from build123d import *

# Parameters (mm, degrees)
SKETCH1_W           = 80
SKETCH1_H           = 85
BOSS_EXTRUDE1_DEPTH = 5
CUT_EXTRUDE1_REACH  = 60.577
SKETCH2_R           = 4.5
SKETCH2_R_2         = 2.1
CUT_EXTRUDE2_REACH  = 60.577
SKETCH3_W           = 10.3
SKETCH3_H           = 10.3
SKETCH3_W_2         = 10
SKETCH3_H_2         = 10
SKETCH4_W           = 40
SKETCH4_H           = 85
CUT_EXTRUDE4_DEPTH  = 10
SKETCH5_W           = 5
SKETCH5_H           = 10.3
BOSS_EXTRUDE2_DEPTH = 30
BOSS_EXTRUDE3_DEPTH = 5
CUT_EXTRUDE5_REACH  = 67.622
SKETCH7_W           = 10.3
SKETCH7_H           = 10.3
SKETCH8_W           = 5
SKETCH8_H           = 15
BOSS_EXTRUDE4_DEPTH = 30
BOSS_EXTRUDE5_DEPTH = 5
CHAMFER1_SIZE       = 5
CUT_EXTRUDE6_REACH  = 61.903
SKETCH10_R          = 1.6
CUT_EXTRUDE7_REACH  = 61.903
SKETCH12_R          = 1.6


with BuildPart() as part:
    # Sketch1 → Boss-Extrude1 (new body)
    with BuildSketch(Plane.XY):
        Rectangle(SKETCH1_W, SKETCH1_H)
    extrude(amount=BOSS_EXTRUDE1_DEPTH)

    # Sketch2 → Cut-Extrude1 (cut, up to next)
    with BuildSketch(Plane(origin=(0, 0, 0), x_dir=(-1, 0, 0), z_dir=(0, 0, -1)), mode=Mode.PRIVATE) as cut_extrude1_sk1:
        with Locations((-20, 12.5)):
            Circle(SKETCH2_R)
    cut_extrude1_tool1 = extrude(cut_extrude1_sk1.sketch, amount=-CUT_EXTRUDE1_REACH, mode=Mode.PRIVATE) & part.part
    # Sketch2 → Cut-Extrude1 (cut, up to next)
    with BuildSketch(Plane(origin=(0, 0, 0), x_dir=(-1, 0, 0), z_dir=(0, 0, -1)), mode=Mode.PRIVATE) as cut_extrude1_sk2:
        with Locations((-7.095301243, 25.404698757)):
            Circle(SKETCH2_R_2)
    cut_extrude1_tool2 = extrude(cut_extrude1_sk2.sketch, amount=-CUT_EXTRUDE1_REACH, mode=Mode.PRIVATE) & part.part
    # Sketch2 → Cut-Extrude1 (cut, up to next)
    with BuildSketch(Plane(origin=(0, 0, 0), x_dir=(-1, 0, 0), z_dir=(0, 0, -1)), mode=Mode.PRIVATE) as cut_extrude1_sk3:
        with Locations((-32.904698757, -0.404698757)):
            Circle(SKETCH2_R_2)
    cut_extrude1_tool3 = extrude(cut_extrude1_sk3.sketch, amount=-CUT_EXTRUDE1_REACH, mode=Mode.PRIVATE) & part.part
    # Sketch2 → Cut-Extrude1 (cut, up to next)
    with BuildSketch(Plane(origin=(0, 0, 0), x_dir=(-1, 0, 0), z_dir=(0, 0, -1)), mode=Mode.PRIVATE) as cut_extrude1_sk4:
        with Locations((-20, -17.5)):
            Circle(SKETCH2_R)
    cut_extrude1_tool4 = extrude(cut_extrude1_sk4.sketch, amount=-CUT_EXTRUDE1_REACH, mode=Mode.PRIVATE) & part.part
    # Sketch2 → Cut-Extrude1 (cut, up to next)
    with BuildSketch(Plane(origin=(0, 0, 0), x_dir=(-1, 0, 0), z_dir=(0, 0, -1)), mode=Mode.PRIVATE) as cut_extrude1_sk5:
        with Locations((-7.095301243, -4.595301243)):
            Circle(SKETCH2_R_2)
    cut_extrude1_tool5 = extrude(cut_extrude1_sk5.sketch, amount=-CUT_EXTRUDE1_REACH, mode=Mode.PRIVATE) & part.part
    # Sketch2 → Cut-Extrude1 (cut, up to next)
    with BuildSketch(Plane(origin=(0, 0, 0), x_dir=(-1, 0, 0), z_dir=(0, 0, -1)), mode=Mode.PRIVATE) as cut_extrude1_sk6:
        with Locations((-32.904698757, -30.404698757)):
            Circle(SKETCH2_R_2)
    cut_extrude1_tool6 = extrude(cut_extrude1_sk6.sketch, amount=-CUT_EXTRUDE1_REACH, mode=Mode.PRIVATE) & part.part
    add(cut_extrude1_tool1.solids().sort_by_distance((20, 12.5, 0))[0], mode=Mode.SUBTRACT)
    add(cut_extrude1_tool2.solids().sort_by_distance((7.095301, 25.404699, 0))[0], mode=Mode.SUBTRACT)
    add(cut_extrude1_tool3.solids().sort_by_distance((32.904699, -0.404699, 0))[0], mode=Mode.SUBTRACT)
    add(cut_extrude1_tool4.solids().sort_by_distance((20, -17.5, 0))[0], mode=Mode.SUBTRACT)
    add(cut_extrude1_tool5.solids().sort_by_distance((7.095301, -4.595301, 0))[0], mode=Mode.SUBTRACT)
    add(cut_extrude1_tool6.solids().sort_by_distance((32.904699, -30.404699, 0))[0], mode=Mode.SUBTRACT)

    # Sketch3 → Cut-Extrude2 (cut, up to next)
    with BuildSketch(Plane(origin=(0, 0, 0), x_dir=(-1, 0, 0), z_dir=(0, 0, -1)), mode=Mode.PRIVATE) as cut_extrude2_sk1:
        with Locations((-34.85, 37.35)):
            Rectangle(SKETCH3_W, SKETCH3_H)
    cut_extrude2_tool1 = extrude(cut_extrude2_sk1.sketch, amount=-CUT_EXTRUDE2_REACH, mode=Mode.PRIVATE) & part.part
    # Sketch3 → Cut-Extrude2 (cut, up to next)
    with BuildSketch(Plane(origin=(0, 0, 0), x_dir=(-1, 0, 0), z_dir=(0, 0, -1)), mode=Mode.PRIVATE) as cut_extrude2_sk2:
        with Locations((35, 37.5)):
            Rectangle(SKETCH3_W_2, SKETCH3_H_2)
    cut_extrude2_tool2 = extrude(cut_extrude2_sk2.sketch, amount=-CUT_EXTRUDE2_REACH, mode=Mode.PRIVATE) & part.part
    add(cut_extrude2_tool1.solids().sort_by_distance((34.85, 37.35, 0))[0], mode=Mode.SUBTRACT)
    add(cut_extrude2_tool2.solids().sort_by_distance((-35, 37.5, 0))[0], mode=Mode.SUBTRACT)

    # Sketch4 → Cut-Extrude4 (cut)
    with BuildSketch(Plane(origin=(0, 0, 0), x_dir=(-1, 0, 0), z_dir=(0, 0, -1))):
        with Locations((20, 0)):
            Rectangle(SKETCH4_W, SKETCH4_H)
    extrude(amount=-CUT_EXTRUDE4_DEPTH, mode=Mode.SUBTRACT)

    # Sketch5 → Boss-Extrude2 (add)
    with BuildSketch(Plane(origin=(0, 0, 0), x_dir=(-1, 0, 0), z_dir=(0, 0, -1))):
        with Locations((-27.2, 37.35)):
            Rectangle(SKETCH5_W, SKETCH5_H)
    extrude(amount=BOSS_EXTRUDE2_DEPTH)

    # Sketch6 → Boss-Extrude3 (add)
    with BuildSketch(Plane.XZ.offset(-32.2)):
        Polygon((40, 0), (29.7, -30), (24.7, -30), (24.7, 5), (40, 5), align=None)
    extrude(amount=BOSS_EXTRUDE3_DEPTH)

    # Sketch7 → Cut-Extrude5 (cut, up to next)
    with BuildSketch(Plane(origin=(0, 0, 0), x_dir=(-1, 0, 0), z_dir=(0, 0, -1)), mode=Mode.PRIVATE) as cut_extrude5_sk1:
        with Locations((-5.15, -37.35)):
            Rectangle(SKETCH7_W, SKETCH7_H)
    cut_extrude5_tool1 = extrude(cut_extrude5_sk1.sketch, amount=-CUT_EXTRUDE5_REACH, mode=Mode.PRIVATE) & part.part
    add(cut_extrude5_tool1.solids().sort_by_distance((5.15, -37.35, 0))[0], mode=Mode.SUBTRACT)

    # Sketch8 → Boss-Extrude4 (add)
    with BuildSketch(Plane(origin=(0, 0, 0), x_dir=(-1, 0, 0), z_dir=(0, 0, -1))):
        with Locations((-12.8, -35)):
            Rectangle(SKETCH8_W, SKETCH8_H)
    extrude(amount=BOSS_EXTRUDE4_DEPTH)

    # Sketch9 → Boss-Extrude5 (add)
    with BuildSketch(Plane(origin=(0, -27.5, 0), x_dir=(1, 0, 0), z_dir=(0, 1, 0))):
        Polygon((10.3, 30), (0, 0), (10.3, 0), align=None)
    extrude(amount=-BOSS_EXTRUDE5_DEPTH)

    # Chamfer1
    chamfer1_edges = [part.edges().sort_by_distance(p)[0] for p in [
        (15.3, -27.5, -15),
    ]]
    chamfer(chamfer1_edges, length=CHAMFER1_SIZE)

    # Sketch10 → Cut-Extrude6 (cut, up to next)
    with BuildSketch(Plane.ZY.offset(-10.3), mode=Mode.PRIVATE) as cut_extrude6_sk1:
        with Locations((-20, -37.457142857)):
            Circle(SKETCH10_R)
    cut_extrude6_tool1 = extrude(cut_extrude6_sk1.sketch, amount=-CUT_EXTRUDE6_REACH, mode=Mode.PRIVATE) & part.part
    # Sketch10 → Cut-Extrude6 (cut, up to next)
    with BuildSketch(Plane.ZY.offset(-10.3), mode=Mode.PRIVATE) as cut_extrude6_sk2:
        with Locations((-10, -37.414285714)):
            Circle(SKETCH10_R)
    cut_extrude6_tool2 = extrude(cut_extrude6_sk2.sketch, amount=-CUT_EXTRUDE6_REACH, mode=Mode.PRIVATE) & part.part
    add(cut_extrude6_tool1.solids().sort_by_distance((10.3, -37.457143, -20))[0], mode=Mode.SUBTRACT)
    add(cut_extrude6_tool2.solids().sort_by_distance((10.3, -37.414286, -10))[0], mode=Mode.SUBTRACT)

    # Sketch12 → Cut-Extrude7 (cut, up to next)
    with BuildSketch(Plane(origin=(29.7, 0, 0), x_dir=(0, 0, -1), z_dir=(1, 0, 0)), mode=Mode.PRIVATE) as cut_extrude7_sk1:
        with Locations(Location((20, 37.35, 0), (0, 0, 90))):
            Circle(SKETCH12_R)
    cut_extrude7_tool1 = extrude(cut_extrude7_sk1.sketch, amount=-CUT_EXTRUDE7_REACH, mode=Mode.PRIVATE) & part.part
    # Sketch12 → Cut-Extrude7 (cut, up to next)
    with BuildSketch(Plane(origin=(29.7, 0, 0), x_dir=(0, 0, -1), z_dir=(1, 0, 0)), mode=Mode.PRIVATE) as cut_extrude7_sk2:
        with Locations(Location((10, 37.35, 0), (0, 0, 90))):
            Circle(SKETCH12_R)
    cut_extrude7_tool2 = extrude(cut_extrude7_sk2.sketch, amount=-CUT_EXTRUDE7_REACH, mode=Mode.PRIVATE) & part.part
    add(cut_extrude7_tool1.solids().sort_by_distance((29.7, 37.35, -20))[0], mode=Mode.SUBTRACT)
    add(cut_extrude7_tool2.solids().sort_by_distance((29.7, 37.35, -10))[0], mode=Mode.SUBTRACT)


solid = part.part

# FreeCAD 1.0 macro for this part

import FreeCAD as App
import Part
import Sketcher
from FreeCAD import Vector
Q = App.Units.Quantity


def edges_at(feature, points):
    """Names of the edges that pass closest to the given points."""
    edges = feature.Shape.Edges
    near = lambda p: min(range(len(edges)), key=lambda i: edges[i].distToShape(Part.Vertex(*p))[0])
    return sorted({f"Edge{near(p) + 1}" for p in points})


def add_polygon(sketch, points):
    """Adds a closed chain of lines whose ends are joined by coincident constraints."""
    first, n = sketch.GeometryCount, len(points)
    for a, b in zip(points, points[1:] + points[:1]):
        sketch.addGeometry(Part.LineSegment(App.Vector(*a, 0), App.Vector(*b, 0)), False)
    for i in range(n):
        sketch.addConstraint(Sketcher.Constraint("Coincident", first + i, 2, first + (i + 1) % n, 1))

doc = App.newDocument("Part")
body = doc.addObject("PartDesign::Body", "Body")

# Sketch on XY plane
sketch1 = body.newObject("Sketcher::SketchObject", "Sketch")
sketch1.AttachmentSupport = (doc.getObject("XY_Plane"), [""])
sketch1.MapMode = "FlatFace"
add_polygon(sketch1, [(-40, 42.5), (-40, -42.5), (40, -42.5), (40, 42.5)])  # lines 0-3
sketch1.addConstraint([
    Sketcher.Constraint("Vertical", 0),
    Sketcher.Constraint("Horizontal", 1),
    Sketcher.Constraint("Vertical", 2),
    Sketcher.Constraint("Horizontal", 3),
    Sketcher.Constraint("Symmetric", 0, 2, 2, 2, -1, 1),
    Sketcher.Constraint("DistanceX", 1, 1, 1, 2, Q("80 mm")),
    Sketcher.Constraint("DistanceY", 0, 2, 0, 1, Q("85 mm")),
])
pad1 = body.newObject("PartDesign::Pad", "Pad")
pad1.Profile = sketch1
pad1.Length = 5

# Sketch on XY plane
sketch2 = body.newObject("Sketcher::SketchObject", "Sketch001")
sketch2.AttachmentSupport = (doc.getObject("XY_Plane"), [""])
sketch2.MapMode = "FlatFace"
sketch2.addGeometry(Part.Circle(Vector(20, 12.5, 0), Vector(0, 0, 1), 4.5), False)
sketch2.addConstraint([
    Sketcher.Constraint("Diameter", 0, Q("9 mm")),
    Sketcher.Constraint("DistanceX", -1, 1, 0, 3, Q("20 mm")),
    Sketcher.Constraint("DistanceY", -1, 1, 0, 3, Q("12.5 mm")),
])
pocket1 = body.newObject("PartDesign::Pocket", "Pocket")
pocket1.Profile = sketch2
pocket1.Type = "UpToFirst"
pocket1.Reversed = True

# Sketch on XY plane
sketch3 = body.newObject("Sketcher::SketchObject", "Sketch002")
sketch3.AttachmentSupport = (doc.getObject("XY_Plane"), [""])
sketch3.MapMode = "FlatFace"
sketch3.addGeometry(Part.Circle(Vector(7.095301, 25.404699, 0), Vector(0, 0, 1), 2.1), False)
sketch3.addConstraint([
    Sketcher.Constraint("Diameter", 0, Q("4.2 mm")),
    Sketcher.Constraint("DistanceX", -1, 1, 0, 3, Q("7.095301 mm")),
    Sketcher.Constraint("DistanceY", -1, 1, 0, 3, Q("25.404699 mm")),
])
pocket2 = body.newObject("PartDesign::Pocket", "Pocket001")
pocket2.Profile = sketch3
pocket2.Type = "UpToFirst"
pocket2.Reversed = True

# Sketch on XY plane
sketch4 = body.newObject("Sketcher::SketchObject", "Sketch003")
sketch4.AttachmentSupport = (doc.getObject("XY_Plane"), [""])
sketch4.MapMode = "FlatFace"
sketch4.addGeometry(Part.Circle(Vector(32.904699, -0.404699, 0), Vector(0, 0, 1), 2.1), False)
sketch4.addConstraint([
    Sketcher.Constraint("Diameter", 0, Q("4.2 mm")),
    Sketcher.Constraint("DistanceX", -1, 1, 0, 3, Q("32.904699 mm")),
    Sketcher.Constraint("DistanceY", 0, 3, -1, 1, Q("0.404699 mm")),
])
pocket3 = body.newObject("PartDesign::Pocket", "Pocket002")
pocket3.Profile = sketch4
pocket3.Type = "UpToFirst"
pocket3.Reversed = True

# Sketch on XY plane
sketch5 = body.newObject("Sketcher::SketchObject", "Sketch004")
sketch5.AttachmentSupport = (doc.getObject("XY_Plane"), [""])
sketch5.MapMode = "FlatFace"
sketch5.addGeometry(Part.Circle(Vector(20, -17.5, 0), Vector(0, 0, 1), 4.5), False)
sketch5.addConstraint([
    Sketcher.Constraint("Diameter", 0, Q("9 mm")),
    Sketcher.Constraint("DistanceX", -1, 1, 0, 3, Q("20 mm")),
    Sketcher.Constraint("DistanceY", 0, 3, -1, 1, Q("17.5 mm")),
])
pocket4 = body.newObject("PartDesign::Pocket", "Pocket003")
pocket4.Profile = sketch5
pocket4.Type = "UpToFirst"
pocket4.Reversed = True

# Sketch on XY plane
sketch6 = body.newObject("Sketcher::SketchObject", "Sketch005")
sketch6.AttachmentSupport = (doc.getObject("XY_Plane"), [""])
sketch6.MapMode = "FlatFace"
sketch6.addGeometry(Part.Circle(Vector(7.095301, -4.595301, 0), Vector(0, 0, 1), 2.1), False)
sketch6.addConstraint([
    Sketcher.Constraint("Diameter", 0, Q("4.2 mm")),
    Sketcher.Constraint("DistanceX", -1, 1, 0, 3, Q("7.095301 mm")),
    Sketcher.Constraint("DistanceY", 0, 3, -1, 1, Q("4.595301 mm")),
])
pocket5 = body.newObject("PartDesign::Pocket", "Pocket004")
pocket5.Profile = sketch6
pocket5.Type = "UpToFirst"
pocket5.Reversed = True

# Sketch on XY plane
sketch7 = body.newObject("Sketcher::SketchObject", "Sketch006")
sketch7.AttachmentSupport = (doc.getObject("XY_Plane"), [""])
sketch7.MapMode = "FlatFace"
sketch7.addGeometry(Part.Circle(Vector(32.904699, -30.404699, 0), Vector(0, 0, 1), 2.1), False)
sketch7.addConstraint([
    Sketcher.Constraint("Diameter", 0, Q("4.2 mm")),
    Sketcher.Constraint("DistanceX", -1, 1, 0, 3, Q("32.904699 mm")),
    Sketcher.Constraint("DistanceY", 0, 3, -1, 1, Q("30.404699 mm")),
])
pocket6 = body.newObject("PartDesign::Pocket", "Pocket005")
pocket6.Profile = sketch7
pocket6.Type = "UpToFirst"
pocket6.Reversed = True

# Sketch on XY plane
sketch8 = body.newObject("Sketcher::SketchObject", "Sketch007")
sketch8.AttachmentSupport = (doc.getObject("XY_Plane"), [""])
sketch8.MapMode = "FlatFace"
add_polygon(sketch8, [(40, 42.5), (40, 32.2), (29.7, 32.2), (29.7, 42.5)])  # lines 0-3
sketch8.addConstraint([
    Sketcher.Constraint("Vertical", 0),
    Sketcher.Constraint("Horizontal", 1),
    Sketcher.Constraint("Vertical", 2),
    Sketcher.Constraint("Horizontal", 3),
    Sketcher.Constraint("Equal", 3, 0),
    Sketcher.Constraint("DistanceX", 1, 2, 1, 1, Q("10.3 mm")),
    Sketcher.Constraint("DistanceX", -1, 1, 0, 2, Q("40 mm")),
    Sketcher.Constraint("DistanceY", -1, 1, 0, 2, Q("32.2 mm")),
])
pocket7 = body.newObject("PartDesign::Pocket", "Pocket006")
pocket7.Profile = sketch8
pocket7.Type = "UpToFirst"
pocket7.Reversed = True

# Sketch on XY plane
sketch9 = body.newObject("Sketcher::SketchObject", "Sketch008")
sketch9.AttachmentSupport = (doc.getObject("XY_Plane"), [""])
sketch9.MapMode = "FlatFace"
add_polygon(sketch9, [(-30, 42.5), (-30, 32.5), (-40, 32.5), (-40, 42.5)])  # lines 0-3
sketch9.addConstraint([
    Sketcher.Constraint("Vertical", 0),
    Sketcher.Constraint("Horizontal", 1),
    Sketcher.Constraint("Vertical", 2),
    Sketcher.Constraint("Horizontal", 3),
    Sketcher.Constraint("Equal", 3, 0),
    Sketcher.Constraint("DistanceX", 1, 2, 1, 1, Q("10 mm")),
    Sketcher.Constraint("DistanceX", 0, 2, -1, 1, Q("30 mm")),
    Sketcher.Constraint("DistanceY", -1, 1, 0, 2, Q("32.5 mm")),
])
pocket8 = body.newObject("PartDesign::Pocket", "Pocket007")
pocket8.Profile = sketch9
pocket8.Type = "UpToFirst"
pocket8.Reversed = True

# Sketch on XY plane
sketch10 = body.newObject("Sketcher::SketchObject", "Sketch009")
sketch10.AttachmentSupport = (doc.getObject("XY_Plane"), [""])
sketch10.MapMode = "FlatFace"
add_polygon(sketch10, [(0, 42.5), (0, -42.5), (-40, -42.5), (-40, 42.5)])  # lines 0-3
sketch10.addConstraint([
    Sketcher.Constraint("Vertical", 0),
    Sketcher.Constraint("Horizontal", 1),
    Sketcher.Constraint("Vertical", 2),
    Sketcher.Constraint("Horizontal", 3),
    Sketcher.Constraint("Symmetric", 0, 2, 3, 2, -1, 1),
    Sketcher.Constraint("DistanceX", 1, 2, 1, 1, Q("40 mm")),
    Sketcher.Constraint("DistanceY", 0, 2, 0, 1, Q("85 mm")),
])
pocket9 = body.newObject("PartDesign::Pocket", "Pocket008")
pocket9.Profile = sketch10
pocket9.Length = 10
pocket9.Reversed = True

# Sketch on XY plane
sketch11 = body.newObject("Sketcher::SketchObject", "Sketch010")
sketch11.AttachmentSupport = (doc.getObject("XY_Plane"), [""])
sketch11.MapMode = "FlatFace"
add_polygon(sketch11, [(29.7, 42.5), (29.7, 32.2), (24.7, 32.2), (24.7, 42.5)])  # lines 0-3
sketch11.addConstraint([
    Sketcher.Constraint("Vertical", 0),
    Sketcher.Constraint("Horizontal", 1),
    Sketcher.Constraint("Vertical", 2),
    Sketcher.Constraint("Horizontal", 3),
    Sketcher.Constraint("DistanceX", 1, 2, 1, 1, Q("5 mm")),
    Sketcher.Constraint("DistanceY", 0, 2, 0, 1, Q("10.3 mm")),
    Sketcher.Constraint("DistanceX", -1, 1, 0, 2, Q("29.7 mm")),
    Sketcher.Constraint("DistanceY", -1, 1, 0, 2, Q("32.2 mm")),
])
pad2 = body.newObject("PartDesign::Pad", "Pad001")
pad2.Profile = sketch11
pad2.Length = 30
pad2.Reversed = True

# Sketch on XZ plane
sketch12 = body.newObject("Sketcher::SketchObject", "Sketch011")
sketch12.AttachmentSupport = (doc.getObject("XZ_Plane"), [""])
sketch12.MapMode = "FlatFace"
sketch12.AttachmentOffset = App.Placement(Vector(0, 0, -32.2), App.Rotation())
add_polygon(sketch12, [(29.7, -30), (40, 0), (40, 5), (24.7, 5), (24.7, -30)])  # lines 0-4
sketch12.addConstraint([
    Sketcher.Constraint("Vertical", 1),
    Sketcher.Constraint("Horizontal", 2),
    Sketcher.Constraint("Vertical", 3),
    Sketcher.Constraint("Horizontal", 4),
    Sketcher.Constraint("PointOnObject", 0, 2, -1),
    Sketcher.Constraint("Equal", 4, 1),
    Sketcher.Constraint("DistanceX", 4, 1, 4, 2, Q("5 mm")),
    Sketcher.Constraint("DistanceY", 3, 2, 3, 1, Q("35 mm")),
    Sketcher.Constraint("DistanceX", 2, 2, 2, 1, Q("15.3 mm")),
    Sketcher.Constraint("DistanceX", -1, 1, 0, 2, Q("40 mm")),
])
pad3 = body.newObject("PartDesign::Pad", "Pad002")
pad3.Profile = sketch12
pad3.Length = 5

# Sketch on XY plane
sketch13 = body.newObject("Sketcher::SketchObject", "Sketch012")
sketch13.AttachmentSupport = (doc.getObject("XY_Plane"), [""])
sketch13.MapMode = "FlatFace"
add_polygon(sketch13, [(10.3, -32.2), (10.3, -42.5), (0, -42.5), (0, -32.2)])  # lines 0-3
sketch13.addConstraint([
    Sketcher.Constraint("Vertical", 0),
    Sketcher.Constraint("Horizontal", 1),
    Sketcher.Constraint("Vertical", 2),
    Sketcher.Constraint("Horizontal", 3),
    Sketcher.Constraint("PointOnObject", 1, 2, -2),
    Sketcher.Constraint("Equal", 3, 0),
    Sketcher.Constraint("DistanceX", 1, 2, 1, 1, Q("10.3 mm")),
    Sketcher.Constraint("DistanceY", 0, 2, -1, 1, Q("42.5 mm")),
])
pocket10 = body.newObject("PartDesign::Pocket", "Pocket009")
pocket10.Profile = sketch13
pocket10.Type = "UpToFirst"
pocket10.Reversed = True

# Sketch on XY plane
sketch14 = body.newObject("Sketcher::SketchObject", "Sketch013")
sketch14.AttachmentSupport = (doc.getObject("XY_Plane"), [""])
sketch14.MapMode = "FlatFace"
add_polygon(sketch14, [(15.3, -27.5), (15.3, -42.5), (10.3, -42.5), (10.3, -27.5)])  # lines 0-3
sketch14.addConstraint([
    Sketcher.Constraint("Vertical", 0),
    Sketcher.Constraint("Horizontal", 1),
    Sketcher.Constraint("Vertical", 2),
    Sketcher.Constraint("Horizontal", 3),
    Sketcher.Constraint("DistanceX", 1, 2, 1, 1, Q("5 mm")),
    Sketcher.Constraint("DistanceY", 0, 2, 0, 1, Q("15 mm")),
    Sketcher.Constraint("DistanceX", -1, 1, 0, 2, Q("15.3 mm")),
    Sketcher.Constraint("DistanceY", 0, 2, -1, 1, Q("42.5 mm")),
])
pad4 = body.newObject("PartDesign::Pad", "Pad003")
pad4.Profile = sketch14
pad4.Length = 30
pad4.Reversed = True

# Sketch on XZ plane
sketch15 = body.newObject("Sketcher::SketchObject", "Sketch014")
sketch15.AttachmentSupport = (doc.getObject("XZ_Plane"), [""])
sketch15.MapMode = "FlatFace"
sketch15.AttachmentOffset = App.Placement(Vector(0, 0, 27.5), App.Rotation())
add_polygon(sketch15, [(10.3, -30), (0, 0), (10.3, 0)])  # lines 0-2
sketch15.addConstraint([
    Sketcher.Constraint("Horizontal", 1),
    Sketcher.Constraint("Vertical", 2),
    Sketcher.Constraint("Coincident", 0, 2, -1, 1),
    Sketcher.Constraint("DistanceY", 2, 2, 2, 1, Q("30 mm")),
    Sketcher.Constraint("DistanceX", 1, 1, 1, 2, Q("10.3 mm")),
])
pad5 = body.newObject("PartDesign::Pad", "Pad004")
pad5.Profile = sketch15
pad5.Length = 5
doc.recompute()

chamfer = body.newObject("PartDesign::Chamfer", "Chamfer")
chamfer.Base = (pad5, edges_at(pad5, [(15.3, -27.5, -15)]))
chamfer.Size = 5

# Sketch on YZ plane
sketch16 = body.newObject("Sketcher::SketchObject", "Sketch015")
sketch16.AttachmentSupport = (doc.getObject("YZ_Plane"), [""])
sketch16.MapMode = "FlatFace"
sketch16.AttachmentOffset = App.Placement(Vector(0, 0, 10.3), App.Rotation())
sketch16.addGeometry(Part.Circle(Vector(-37.457143, -20, 0), Vector(0, 0, 1), 1.6), False)
sketch16.addConstraint([
    Sketcher.Constraint("Diameter", 0, Q("3.2 mm")),
    Sketcher.Constraint("DistanceY", 0, 3, -1, 1, Q("20 mm")),
    Sketcher.Constraint("DistanceX", 0, 3, -1, 1, Q("37.457143 mm")),
])
pocket11 = body.newObject("PartDesign::Pocket", "Pocket010")
pocket11.Profile = sketch16
pocket11.Type = "UpToFirst"
pocket11.Reversed = True

# Sketch on YZ plane
sketch17 = body.newObject("Sketcher::SketchObject", "Sketch016")
sketch17.AttachmentSupport = (doc.getObject("YZ_Plane"), [""])
sketch17.MapMode = "FlatFace"
sketch17.AttachmentOffset = App.Placement(Vector(0, 0, 10.3), App.Rotation())
sketch17.addGeometry(Part.Circle(Vector(-37.414286, -10, 0), Vector(0, 0, 1), 1.6), False)
sketch17.addConstraint([
    Sketcher.Constraint("Diameter", 0, Q("3.2 mm")),
    Sketcher.Constraint("DistanceY", 0, 3, -1, 1, Q("10 mm")),
    Sketcher.Constraint("DistanceX", 0, 3, -1, 1, Q("37.414286 mm")),
])
pocket12 = body.newObject("PartDesign::Pocket", "Pocket011")
pocket12.Profile = sketch17
pocket12.Type = "UpToFirst"
pocket12.Reversed = True

# Sketch on YZ plane
sketch18 = body.newObject("Sketcher::SketchObject", "Sketch017")
sketch18.AttachmentSupport = (doc.getObject("YZ_Plane"), [""])
sketch18.MapMode = "FlatFace"
sketch18.AttachmentOffset = App.Placement(Vector(0, 0, 29.7), App.Rotation())
sketch18.addGeometry(Part.Circle(Vector(37.35, -20, 0), Vector(0, 0, 1), 1.6), False)
sketch18.addConstraint([
    Sketcher.Constraint("Diameter", 0, Q("3.2 mm")),
    Sketcher.Constraint("DistanceY", 0, 3, -1, 1, Q("20 mm")),
    Sketcher.Constraint("DistanceX", -1, 1, 0, 3, Q("37.35 mm")),
])
pocket13 = body.newObject("PartDesign::Pocket", "Pocket012")
pocket13.Profile = sketch18
pocket13.Type = "UpToFirst"

# Sketch on YZ plane
sketch19 = body.newObject("Sketcher::SketchObject", "Sketch018")
sketch19.AttachmentSupport = (doc.getObject("YZ_Plane"), [""])
sketch19.MapMode = "FlatFace"
sketch19.AttachmentOffset = App.Placement(Vector(0, 0, 29.7), App.Rotation())
sketch19.addGeometry(Part.Circle(Vector(37.35, -10, 0), Vector(0, 0, 1), 1.6), False)
sketch19.addConstraint([
    Sketcher.Constraint("Diameter", 0, Q("3.2 mm")),
    Sketcher.Constraint("DistanceY", 0, 3, -1, 1, Q("10 mm")),
    Sketcher.Constraint("DistanceX", -1, 1, 0, 3, Q("37.35 mm")),
])
pocket14 = body.newObject("PartDesign::Pocket", "Pocket013")
pocket14.Profile = sketch19
pocket14.Type = "UpToFirst"

doc.recompute()
